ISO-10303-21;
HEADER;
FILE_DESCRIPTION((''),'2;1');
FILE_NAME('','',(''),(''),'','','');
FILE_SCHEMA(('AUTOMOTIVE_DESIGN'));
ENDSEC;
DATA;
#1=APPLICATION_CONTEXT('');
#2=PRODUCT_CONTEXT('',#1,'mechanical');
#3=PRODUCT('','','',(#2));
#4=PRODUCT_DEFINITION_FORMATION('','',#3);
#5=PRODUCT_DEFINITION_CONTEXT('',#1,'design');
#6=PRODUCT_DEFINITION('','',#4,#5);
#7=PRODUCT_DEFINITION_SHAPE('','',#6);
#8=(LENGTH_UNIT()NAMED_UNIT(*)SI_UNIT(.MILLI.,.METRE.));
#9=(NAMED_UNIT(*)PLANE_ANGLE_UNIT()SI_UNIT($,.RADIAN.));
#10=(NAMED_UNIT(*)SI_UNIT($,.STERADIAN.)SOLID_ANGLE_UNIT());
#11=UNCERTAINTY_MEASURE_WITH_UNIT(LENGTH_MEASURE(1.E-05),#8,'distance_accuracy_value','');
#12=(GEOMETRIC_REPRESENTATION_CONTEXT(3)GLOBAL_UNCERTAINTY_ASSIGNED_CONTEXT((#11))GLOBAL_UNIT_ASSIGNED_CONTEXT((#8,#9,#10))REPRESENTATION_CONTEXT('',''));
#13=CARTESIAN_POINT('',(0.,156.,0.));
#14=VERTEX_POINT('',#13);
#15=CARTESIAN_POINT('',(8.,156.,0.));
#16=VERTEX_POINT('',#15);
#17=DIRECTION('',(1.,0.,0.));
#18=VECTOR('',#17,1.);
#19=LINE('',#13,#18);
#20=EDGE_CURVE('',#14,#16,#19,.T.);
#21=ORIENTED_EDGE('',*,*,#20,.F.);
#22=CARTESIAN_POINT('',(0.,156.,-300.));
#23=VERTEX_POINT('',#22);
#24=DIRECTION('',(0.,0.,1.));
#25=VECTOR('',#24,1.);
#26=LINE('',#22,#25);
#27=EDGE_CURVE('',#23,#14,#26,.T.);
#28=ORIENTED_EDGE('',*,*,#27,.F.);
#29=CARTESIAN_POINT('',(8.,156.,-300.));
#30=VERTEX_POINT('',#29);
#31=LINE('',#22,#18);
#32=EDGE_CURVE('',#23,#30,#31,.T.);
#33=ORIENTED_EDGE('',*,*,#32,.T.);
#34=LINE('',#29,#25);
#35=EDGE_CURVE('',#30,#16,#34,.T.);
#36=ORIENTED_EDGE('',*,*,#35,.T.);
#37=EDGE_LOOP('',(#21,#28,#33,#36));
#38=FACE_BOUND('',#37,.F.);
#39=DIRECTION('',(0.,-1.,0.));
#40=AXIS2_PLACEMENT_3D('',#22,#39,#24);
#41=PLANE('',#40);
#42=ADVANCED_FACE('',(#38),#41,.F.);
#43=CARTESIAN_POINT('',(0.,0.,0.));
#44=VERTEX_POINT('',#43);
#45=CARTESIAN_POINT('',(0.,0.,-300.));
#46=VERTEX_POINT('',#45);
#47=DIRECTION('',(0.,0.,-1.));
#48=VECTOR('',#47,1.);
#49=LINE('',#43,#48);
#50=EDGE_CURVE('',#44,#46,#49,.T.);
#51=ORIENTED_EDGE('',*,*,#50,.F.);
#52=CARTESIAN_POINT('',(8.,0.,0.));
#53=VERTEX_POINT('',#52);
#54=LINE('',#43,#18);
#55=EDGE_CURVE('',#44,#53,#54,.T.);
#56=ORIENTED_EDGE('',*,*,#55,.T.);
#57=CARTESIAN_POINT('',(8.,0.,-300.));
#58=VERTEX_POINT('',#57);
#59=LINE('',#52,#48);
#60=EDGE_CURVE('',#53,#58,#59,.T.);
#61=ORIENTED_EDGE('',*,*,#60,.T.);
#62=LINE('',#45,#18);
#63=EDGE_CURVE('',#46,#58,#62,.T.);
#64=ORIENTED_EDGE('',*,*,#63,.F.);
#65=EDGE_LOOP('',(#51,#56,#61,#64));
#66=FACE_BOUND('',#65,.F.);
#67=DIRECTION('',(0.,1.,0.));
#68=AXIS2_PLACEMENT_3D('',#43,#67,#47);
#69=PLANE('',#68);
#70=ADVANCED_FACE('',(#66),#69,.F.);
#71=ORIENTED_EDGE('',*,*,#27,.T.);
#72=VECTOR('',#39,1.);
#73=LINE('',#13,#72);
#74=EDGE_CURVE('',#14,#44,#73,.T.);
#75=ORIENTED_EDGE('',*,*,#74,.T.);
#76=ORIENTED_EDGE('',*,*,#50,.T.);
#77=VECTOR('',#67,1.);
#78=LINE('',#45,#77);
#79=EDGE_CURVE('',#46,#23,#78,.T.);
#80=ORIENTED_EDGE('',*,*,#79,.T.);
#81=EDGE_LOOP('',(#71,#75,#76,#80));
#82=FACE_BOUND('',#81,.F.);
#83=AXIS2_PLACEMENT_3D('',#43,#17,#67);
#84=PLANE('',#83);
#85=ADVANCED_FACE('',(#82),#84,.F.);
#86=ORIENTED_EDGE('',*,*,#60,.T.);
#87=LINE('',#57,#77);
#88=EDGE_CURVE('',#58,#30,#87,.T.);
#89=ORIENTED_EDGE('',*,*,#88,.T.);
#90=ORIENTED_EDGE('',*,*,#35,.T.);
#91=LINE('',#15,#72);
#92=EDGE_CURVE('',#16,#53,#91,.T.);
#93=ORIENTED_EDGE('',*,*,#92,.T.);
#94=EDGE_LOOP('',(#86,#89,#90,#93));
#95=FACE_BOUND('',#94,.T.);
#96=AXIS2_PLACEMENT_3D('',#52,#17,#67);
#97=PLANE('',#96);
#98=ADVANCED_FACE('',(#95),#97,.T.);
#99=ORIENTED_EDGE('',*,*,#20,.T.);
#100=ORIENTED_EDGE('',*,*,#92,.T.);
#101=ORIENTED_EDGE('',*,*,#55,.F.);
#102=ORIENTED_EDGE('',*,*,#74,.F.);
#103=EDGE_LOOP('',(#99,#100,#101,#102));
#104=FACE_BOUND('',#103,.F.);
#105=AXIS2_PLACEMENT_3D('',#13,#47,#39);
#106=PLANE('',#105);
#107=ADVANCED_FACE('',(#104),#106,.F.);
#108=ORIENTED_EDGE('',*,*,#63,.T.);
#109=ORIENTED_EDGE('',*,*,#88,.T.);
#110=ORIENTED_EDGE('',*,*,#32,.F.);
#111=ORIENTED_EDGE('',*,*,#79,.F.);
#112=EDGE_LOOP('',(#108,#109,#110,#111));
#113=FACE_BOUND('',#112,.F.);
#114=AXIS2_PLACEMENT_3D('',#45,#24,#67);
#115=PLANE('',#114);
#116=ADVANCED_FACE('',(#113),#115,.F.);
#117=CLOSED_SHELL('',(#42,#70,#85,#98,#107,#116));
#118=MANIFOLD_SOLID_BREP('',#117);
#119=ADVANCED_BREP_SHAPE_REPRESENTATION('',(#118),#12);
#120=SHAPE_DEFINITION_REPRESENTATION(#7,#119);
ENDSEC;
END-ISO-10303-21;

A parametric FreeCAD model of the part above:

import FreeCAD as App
import Part
import Sketcher

V = App.Vector

doc = App.newDocument("Part")
params = doc.addObject("Spreadsheet::Sheet", "Params")
for row, (alias, value) in enumerate([
    ("sketch1_width", "156 mm"),
    ("sketch1_height", "300 mm"),
    ("pad1_length", "8 mm"),
], start=1):
    params.set(f"A{row}", alias)
    params.set(f"B{row}", "=" + value)
    params.setAlias(f"B{row}", alias)

body = doc.addObject("PartDesign::Body", "Body")

# Sketch on YZ plane
sketch1 = body.newObject("Sketcher::SketchObject", "Sketch")
sketch1.AttachmentSupport = (doc.getObject("YZ_Plane"), [""])
sketch1.MapMode = "FlatFace"
sketch1.addGeometry(Part.LineSegment(V(156, 0, 0), V(0, 0, 0)), False)
sketch1.addGeometry(Part.LineSegment(V(0, 0, 0), V(0, -300, 0)), False)
sketch1.addGeometry(Part.LineSegment(V(0, -300, 0), V(156, -300, 0)), False)
sketch1.addGeometry(Part.LineSegment(V(156, -300, 0), V(156, 0, 0)), False)
sketch1.addConstraint(Sketcher.Constraint("Coincident", 0, 2, 1, 1))
sketch1.addConstraint(Sketcher.Constraint("Coincident", 1, 2, 2, 1))
sketch1.addConstraint(Sketcher.Constraint("Coincident", 2, 2, 3, 1))
sketch1.addConstraint(Sketcher.Constraint("Coincident", 3, 2, 0, 1))
sketch1.addConstraint(Sketcher.Constraint("Horizontal", 0))
sketch1.addConstraint(Sketcher.Constraint("Vertical", 1))
sketch1.addConstraint(Sketcher.Constraint("Horizontal", 2))
sketch1.addConstraint(Sketcher.Constraint("Vertical", 3))
sketch1.addConstraint(Sketcher.Constraint("Coincident", 0, 2, -1, 1))
sketch1.addConstraint(Sketcher.Constraint("DistanceX", 0, 2, 0, 1, 156.0))
sketch1.addConstraint(Sketcher.Constraint("DistanceY", 1, 2, 1, 1, 300.0))
sketch1.setExpression("Constraints[9]", "Params.sketch1_width")
sketch1.setExpression("Constraints[10]", "Params.sketch1_height")
pad1 = body.newObject("PartDesign::Pad", "Pad")
pad1.Profile = sketch1
pad1.setExpression("Length", "Params.pad1_length")

doc.recompute()
